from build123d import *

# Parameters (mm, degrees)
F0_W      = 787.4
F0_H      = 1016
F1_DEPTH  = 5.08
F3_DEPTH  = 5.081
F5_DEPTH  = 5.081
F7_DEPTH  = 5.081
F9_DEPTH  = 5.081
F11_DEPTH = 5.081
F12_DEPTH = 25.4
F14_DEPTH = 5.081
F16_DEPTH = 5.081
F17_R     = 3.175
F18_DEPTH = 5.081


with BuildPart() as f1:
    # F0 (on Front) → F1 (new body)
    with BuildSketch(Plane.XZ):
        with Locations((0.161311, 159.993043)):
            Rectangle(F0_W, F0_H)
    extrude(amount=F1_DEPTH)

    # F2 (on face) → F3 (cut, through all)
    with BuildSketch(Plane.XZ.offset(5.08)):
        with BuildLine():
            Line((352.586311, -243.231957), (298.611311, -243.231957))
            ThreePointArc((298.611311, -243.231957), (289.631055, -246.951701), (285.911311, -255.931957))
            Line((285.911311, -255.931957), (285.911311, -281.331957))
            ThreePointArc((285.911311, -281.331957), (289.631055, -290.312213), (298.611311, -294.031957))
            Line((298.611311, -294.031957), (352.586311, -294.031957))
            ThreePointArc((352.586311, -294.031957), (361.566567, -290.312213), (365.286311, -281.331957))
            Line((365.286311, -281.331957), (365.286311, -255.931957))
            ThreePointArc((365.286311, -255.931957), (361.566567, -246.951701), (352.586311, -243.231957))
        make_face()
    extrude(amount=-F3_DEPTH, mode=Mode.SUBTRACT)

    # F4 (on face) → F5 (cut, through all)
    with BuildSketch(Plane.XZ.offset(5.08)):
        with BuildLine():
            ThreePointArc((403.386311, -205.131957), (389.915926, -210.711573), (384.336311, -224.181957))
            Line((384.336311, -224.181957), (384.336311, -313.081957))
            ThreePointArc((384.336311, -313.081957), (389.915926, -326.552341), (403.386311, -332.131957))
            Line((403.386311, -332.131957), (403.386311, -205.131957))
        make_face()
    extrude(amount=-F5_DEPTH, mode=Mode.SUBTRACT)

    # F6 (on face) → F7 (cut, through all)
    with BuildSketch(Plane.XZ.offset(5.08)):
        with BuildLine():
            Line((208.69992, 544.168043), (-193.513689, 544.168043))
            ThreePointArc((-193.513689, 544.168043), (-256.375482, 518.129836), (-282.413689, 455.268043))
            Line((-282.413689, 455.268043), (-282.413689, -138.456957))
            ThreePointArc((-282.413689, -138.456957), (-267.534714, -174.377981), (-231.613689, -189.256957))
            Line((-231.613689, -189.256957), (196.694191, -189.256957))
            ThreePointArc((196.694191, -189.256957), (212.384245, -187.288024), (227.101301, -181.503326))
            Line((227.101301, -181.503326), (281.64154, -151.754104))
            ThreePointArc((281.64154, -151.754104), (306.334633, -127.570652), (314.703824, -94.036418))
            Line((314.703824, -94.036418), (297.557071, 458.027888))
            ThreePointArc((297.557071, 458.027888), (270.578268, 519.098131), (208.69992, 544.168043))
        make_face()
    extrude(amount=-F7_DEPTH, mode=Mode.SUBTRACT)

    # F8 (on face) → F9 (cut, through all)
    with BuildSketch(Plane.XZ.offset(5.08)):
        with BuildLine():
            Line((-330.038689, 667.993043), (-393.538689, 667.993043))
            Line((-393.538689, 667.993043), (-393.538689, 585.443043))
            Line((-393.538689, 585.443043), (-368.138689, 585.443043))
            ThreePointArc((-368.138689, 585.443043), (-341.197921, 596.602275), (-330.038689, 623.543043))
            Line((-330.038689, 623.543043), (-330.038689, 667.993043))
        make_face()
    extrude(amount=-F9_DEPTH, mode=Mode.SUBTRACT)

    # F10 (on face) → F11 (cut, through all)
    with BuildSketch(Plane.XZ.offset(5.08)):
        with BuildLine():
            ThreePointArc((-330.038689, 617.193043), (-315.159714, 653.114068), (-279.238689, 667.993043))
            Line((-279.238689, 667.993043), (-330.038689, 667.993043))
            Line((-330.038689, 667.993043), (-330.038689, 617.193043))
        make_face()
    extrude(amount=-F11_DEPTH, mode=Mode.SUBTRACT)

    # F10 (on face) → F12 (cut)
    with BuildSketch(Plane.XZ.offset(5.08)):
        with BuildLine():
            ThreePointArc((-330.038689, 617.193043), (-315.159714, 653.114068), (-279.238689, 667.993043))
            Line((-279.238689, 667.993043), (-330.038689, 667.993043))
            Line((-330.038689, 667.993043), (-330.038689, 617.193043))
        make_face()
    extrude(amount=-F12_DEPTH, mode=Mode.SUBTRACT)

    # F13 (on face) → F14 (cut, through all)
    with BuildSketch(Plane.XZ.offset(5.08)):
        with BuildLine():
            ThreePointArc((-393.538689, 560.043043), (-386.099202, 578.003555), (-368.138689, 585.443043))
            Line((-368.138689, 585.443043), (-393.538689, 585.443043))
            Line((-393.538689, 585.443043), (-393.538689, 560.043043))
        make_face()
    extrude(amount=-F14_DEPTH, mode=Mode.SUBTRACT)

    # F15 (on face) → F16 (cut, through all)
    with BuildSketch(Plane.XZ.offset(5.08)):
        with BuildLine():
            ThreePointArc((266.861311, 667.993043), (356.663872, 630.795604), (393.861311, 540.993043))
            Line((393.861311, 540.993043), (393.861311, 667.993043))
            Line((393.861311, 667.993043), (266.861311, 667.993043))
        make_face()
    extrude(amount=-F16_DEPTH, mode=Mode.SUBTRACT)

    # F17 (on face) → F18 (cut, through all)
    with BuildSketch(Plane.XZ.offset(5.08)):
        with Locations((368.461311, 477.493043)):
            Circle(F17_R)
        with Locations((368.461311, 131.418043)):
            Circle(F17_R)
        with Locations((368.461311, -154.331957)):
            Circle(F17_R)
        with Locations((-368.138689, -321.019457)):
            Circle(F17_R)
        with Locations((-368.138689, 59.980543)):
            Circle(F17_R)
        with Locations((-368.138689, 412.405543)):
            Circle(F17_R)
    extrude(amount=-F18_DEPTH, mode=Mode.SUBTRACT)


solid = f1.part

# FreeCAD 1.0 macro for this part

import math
import FreeCAD as App
import Part
import Sketcher
from FreeCAD import Vector
Q = App.Units.Quantity


def add_polygon(sketch, points):
    """Adds a closed chain of lines whose ends are joined by coincident constraints."""
    first, n = sketch.GeometryCount, len(points)
    for a, b in zip(points, points[1:] + points[:1]):
        sketch.addGeometry(Part.LineSegment(App.Vector(*a, 0), App.Vector(*b, 0)), False)
    for i in range(n):
        sketch.addConstraint(Sketcher.Constraint("Coincident", first + i, 2, first + (i + 1) % n, 1))

doc = App.newDocument("Part")
body = doc.addObject("PartDesign::Body", "Body")

# Sketch on XZ plane
sketch1 = doc.addObject("Sketcher::SketchObject", "Sketch")
body.addObject(sketch1)
sketch1.AttachmentSupport = (doc.XZ_Plane, [""])
sketch1.MapMode = "FlatFace"
add_polygon(sketch1, [(-393.538689, 667.993043), (-393.538689, -348.006957), (393.861311, -348.006957), (393.861311, 667.993043)])  # lines 0-3
sketch1.addConstraint([
    Sketcher.Constraint("Vertical", 0),
    Sketcher.Constraint("Horizontal", 1),
    Sketcher.Constraint("Vertical", 2),
    Sketcher.Constraint("Horizontal", 3),
    Sketcher.Constraint("DistanceX", 1, 1, 1, 2, Q("31 in")),
    Sketcher.Constraint("DistanceY", 0, 2, 0, 1, Q("40 in")),
    Sketcher.Constraint("DistanceX", 0, 2, -1, 1, 393.538689),
    Sketcher.Constraint("DistanceY", 0, 2, -1, 1, 348.006957),
])
pad1 = doc.addObject("PartDesign::Pad", "Pad")
body.addObject(pad1)
pad1.Profile = sketch1
pad1.Length = Q("0.2 in")

# Sketch on XZ plane
sketch2 = doc.addObject("Sketcher::SketchObject", "Sketch001")
body.addObject(sketch2)
sketch2.AttachmentSupport = (doc.XZ_Plane, [""])
sketch2.MapMode = "FlatFace"
sketch2.AttachmentOffset = App.Placement(Vector(0, 0, 0.2 * 25.4), App.Rotation())
sketch2.addGeometry([
    Part.LineSegment(Vector(352.586311, -243.231957, 0), Vector(298.611311, -243.231957, 0)),  # 0
    Part.ArcOfCircle(Part.Circle(Vector(298.611311, -255.931957, 0), Vector(0, 0, 1), 12.7), math.radians(90.000002), math.radians(179.999998)),  # 1
    Part.LineSegment(Vector(285.911311, -255.931957, 0), Vector(285.911311, -281.331957, 0)),  # 2
    Part.ArcOfCircle(Part.Circle(Vector(298.611311, -281.331957, 0), Vector(0, 0, 1), 12.7), math.radians(-179.999998), math.radians(-90.000002)),  # 3
    Part.LineSegment(Vector(298.611311, -294.031957, 0), Vector(352.586311, -294.031957, 0)),  # 4
    Part.ArcOfCircle(Part.Circle(Vector(352.586311, -281.331957, 0), Vector(0, 0, 1), 12.7), math.radians(-89.999998), math.radians(-0.000002)),  # 5
    Part.LineSegment(Vector(365.286311, -281.331957, 0), Vector(365.286311, -255.931957, 0)),  # 6
    Part.ArcOfCircle(Part.Circle(Vector(352.586311, -255.931957, 0), Vector(0, 0, 1), 12.7), math.radians(0.000002), math.radians(89.999998)),  # 7
], False)
sketch2.addConstraint([
    Sketcher.Constraint("Tangent", 0, 2, 1, 1),
    Sketcher.Constraint("Tangent", 1, 2, 2, 1),
    Sketcher.Constraint("Tangent", 2, 2, 3, 1),
    Sketcher.Constraint("Tangent", 3, 2, 4, 1),
    Sketcher.Constraint("Tangent", 4, 2, 5, 1),
    Sketcher.Constraint("Tangent", 5, 2, 6, 1),
    Sketcher.Constraint("Tangent", 6, 2, 7, 1),
    Sketcher.Constraint("Tangent", 7, 2, 0, 1),
    Sketcher.Constraint("Horizontal", 0),
    Sketcher.Constraint("Vertical", 2),
    Sketcher.Constraint("Horizontal", 4),
    Sketcher.Constraint("Vertical", 6),
    Sketcher.Constraint("Equal", 1, 3),
    Sketcher.Constraint("Equal", 3, 5),
    Sketcher.Constraint("Equal", 5, 7),
    Sketcher.Constraint("Radius", 1, Q("0.5 in")),
    Sketcher.Constraint("DistanceY", 2, 2, 2, 1, Q("1 in")),
    Sketcher.Constraint("DistanceX", 0, 2, 0, 1, Q("2.125 in")),
    Sketcher.Constraint("DistanceX", -1, 1, 1, 3, 298.611311),
    Sketcher.Constraint("DistanceY", 1, 3, -1, 1, 255.931957),
])
pocket1 = doc.addObject("PartDesign::Pocket", "Pocket")
body.addObject(pocket1)
pocket1.Profile = sketch2
pocket1.Type = "ThroughAll"

# Sketch on XZ plane
sketch3 = doc.addObject("Sketcher::SketchObject", "Sketch002")
body.addObject(sketch3)
sketch3.AttachmentSupport = (doc.XZ_Plane, [""])
sketch3.MapMode = "FlatFace"
sketch3.AttachmentOffset = App.Placement(Vector(0, 0, 0.2 * 25.4), App.Rotation())
sketch3.addGeometry([
    Part.ArcOfCircle(Part.Circle(Vector(403.38631, -224.181956, 0), Vector(0, 0, 1), 19.049999), math.radians(89.999997), math.radians(180.000003)),
    Part.LineSegment(Vector(384.336311, -224.181957, 0), Vector(384.336311, -313.081957, 0)),
    Part.ArcOfCircle(Part.Circle(Vector(403.38631, -313.081958, 0), Vector(0, 0, 1), 19.049999), math.radians(179.999997), math.radians(270.000003)),
    Part.LineSegment(Vector(403.386311, -332.131957, 0), Vector(403.386311, -205.131957, 0)),
], False)
sketch3.addConstraint([
    Sketcher.Constraint("Tangent", 0, 2, 1, 1),
    Sketcher.Constraint("Tangent", 1, 2, 2, 1),
    Sketcher.Constraint("Coincident", 2, 2, 3, 1),
    Sketcher.Constraint("Coincident", 3, 2, 0, 1),
    Sketcher.Constraint("Vertical", 1),
    Sketcher.Constraint("Vertical", 3),
    Sketcher.Constraint("Equal", 0, 2),
    Sketcher.Constraint("Vertical", 0, 3, 2, 2),
    Sketcher.Constraint("DistanceY", 3, 1, 3, 2, Q("5 in")),
    Sketcher.Constraint("Radius", 0, Q("0.75 in")),
    Sketcher.Constraint("DistanceX", -1, 1, 0, 3, 403.38631),
    Sketcher.Constraint("DistanceY", 2, 3, -1, 1, 313.081958),
])
pocket2 = doc.addObject("PartDesign::Pocket", "Pocket001")
body.addObject(pocket2)
pocket2.Profile = sketch3
pocket2.Type = "ThroughAll"

# Sketch on XZ plane
sketch4 = doc.addObject("Sketcher::SketchObject", "Sketch003")
body.addObject(sketch4)
sketch4.AttachmentSupport = (doc.XZ_Plane, [""])
sketch4.MapMode = "FlatFace"
sketch4.AttachmentOffset = App.Placement(Vector(0, 0, 0.2 * 25.4), App.Rotation())
sketch4.addGeometry([
    Part.LineSegment(Vector(208.69992, 544.168043, 0), Vector(-193.513689, 544.168043, 0)),  # 0
    Part.ArcOfCircle(Part.Circle(Vector(-193.51369, 455.268044, 0), Vector(0, 0, 1), 88.899999), math.radians(90), math.radians(180)),  # 1
    Part.LineSegment(Vector(-282.413689, 455.268043, 0), Vector(-282.413689, -138.456957, 0)),  # 2
    Part.ArcOfCircle(Part.Circle(Vector(-231.613689, -138.456957, 0), Vector(0, 0, 1), 50.8), math.radians(180), math.radians(270)),  # 3
    Part.LineSegment(Vector(-231.613689, -189.256957, 0), Vector(196.694191, -189.256957, 0)),  # 4
    Part.ArcOfCircle(Part.Circle(Vector(196.694191, -125.756958, 0), Vector(0, 0, 1), 63.499999), math.radians(-90), math.radians(-61.38954)),  # 5
    Part.LineSegment(Vector(227.101301, -181.503326, 0), Vector(281.64154, -151.754104, 0)),  # 6
    Part.ArcOfCircle(Part.Circle(Vector(251.234433, -96.007736, 0), Vector(0, 0, 1), 63.499997), math.radians(-61.389543), math.radians(1.778998)),  # 7
    Part.LineSegment(Vector(314.703824, -94.036418, 0), Vector(297.557071, 458.027888, 0)),  # 8
    Part.ArcOfCircle(Part.Circle(Vector(208.699921, 455.268044, 0), Vector(0, 0, 1), 88.899999), math.radians(1.778997), math.radians(90.000001)),  # 9
], False)
sketch4.addConstraint([
    Sketcher.Constraint("Tangent", 0, 2, 1, 1),
    Sketcher.Constraint("Tangent", 1, 2, 2, 1),
    Sketcher.Constraint("Tangent", 2, 2, 3, 1),
    Sketcher.Constraint("Tangent", 3, 2, 4, 1),
    Sketcher.Constraint("Tangent", 4, 2, 5, 1),
    Sketcher.Constraint("Tangent", 5, 2, 6, 1),
    Sketcher.Constraint("Tangent", 6, 2, 7, 1),
    Sketcher.Constraint("Tangent", 7, 2, 8, 1),
    Sketcher.Constraint("Tangent", 8, 2, 9, 1),
    Sketcher.Constraint("Tangent", 9, 2, 0, 1),
    Sketcher.Constraint("Horizontal", 0),
    Sketcher.Constraint("Vertical", 2),
    Sketcher.Constraint("Horizontal", 4),
    Sketcher.Constraint("Equal", 1, 9),
    Sketcher.Constraint("Radius", 3, Q("2 in")),
    Sketcher.Constraint("Radius", 1, Q("3.5 in")),
    Sketcher.Constraint("Radius", 5, Q("2.5 in")),
    Sketcher.Constraint("Radius", 7, Q("2.4999999 in")),
    Sketcher.Constraint("DistanceY", 2, 2, 2, 1, Q("23.375 in")),
    Sketcher.Constraint("DistanceX", 0, 2, 0, 1, 402.213609),
    Sketcher.Constraint("DistanceX", 4, 1, 4, 2, 428.30788),
    Sketcher.Constraint("DistanceX", -1, 1, 5, 2, 227.101301),
    Sketcher.Constraint("DistanceX", 1, 3, -1, 1, 193.51369),
    Sketcher.Constraint("DistanceX", -1, 1, 6, 2, 281.64154),
    Sketcher.Constraint("DistanceY", 7, 2, -1, 1, 94.036418),
])
pocket3 = doc.addObject("PartDesign::Pocket", "Pocket002")
body.addObject(pocket3)
pocket3.Profile = sketch4
pocket3.Type = "ThroughAll"

# Sketch on XZ plane
sketch5 = doc.addObject("Sketcher::SketchObject", "Sketch004")
body.addObject(sketch5)
sketch5.AttachmentSupport = (doc.XZ_Plane, [""])
sketch5.MapMode = "FlatFace"
sketch5.AttachmentOffset = App.Placement(Vector(0, 0, 0.2 * 25.4), App.Rotation())
sketch5.addGeometry([
    Part.LineSegment(Vector(-330.038689, 667.993043, 0), Vector(-393.538689, 667.993043, 0)),  # 0
    Part.LineSegment(Vector(-393.538689, 667.993043, 0), Vector(-393.538689, 585.443043, 0)),  # 1
    Part.LineSegment(Vector(-393.538689, 585.443043, 0), Vector(-368.138689, 585.443043, 0)),  # 2
    Part.ArcOfCircle(Part.Circle(Vector(-368.13869, 623.543044, 0), Vector(0, 0, 1), 38.100001), math.radians(-89.999998), math.radians(-0.000002)),  # 3
    Part.LineSegment(Vector(-330.038689, 623.543043, 0), Vector(-330.038689, 667.993043, 0)),  # 4
], False)
sketch5.addConstraint([
    Sketcher.Constraint("Coincident", 0, 2, 1, 1),
    Sketcher.Constraint("Coincident", 1, 2, 2, 1),
    Sketcher.Constraint("Tangent", 2, 2, 3, 1),
    Sketcher.Constraint("Tangent", 3, 2, 4, 1),
    Sketcher.Constraint("Coincident", 4, 2, 0, 1),
    Sketcher.Constraint("Horizontal", 0),
    Sketcher.Constraint("Vertical", 1),
    Sketcher.Constraint("Horizontal", 2),
    Sketcher.Constraint("Vertical", 4),
    Sketcher.Constraint("Radius", 3, Q("1.5 in")),
    Sketcher.Constraint("DistanceX", 2, 1, 2, 2, Q("1 in")),
    Sketcher.Constraint("DistanceY", 1, 2, 1, 1, Q("3.25 in")),
    Sketcher.Constraint("DistanceX", 3, 3, -1, 1, 368.13869),
    Sketcher.Constraint("DistanceY", -1, 1, 3, 3, 623.543044),
])
pocket4 = doc.addObject("PartDesign::Pocket", "Pocket003")
body.addObject(pocket4)
pocket4.Profile = sketch5
pocket4.Type = "ThroughAll"

# Sketch on XZ plane
sketch6 = doc.addObject("Sketcher::SketchObject", "Sketch005")
body.addObject(sketch6)
sketch6.AttachmentSupport = (doc.XZ_Plane, [""])
sketch6.MapMode = "FlatFace"
sketch6.AttachmentOffset = App.Placement(Vector(0, 0, 0.2 * 25.4), App.Rotation())
sketch6.addGeometry([
    Part.ArcOfCircle(Part.Circle(Vector(-279.238691, 617.193045, 0), Vector(0, 0, 1), 50.799998), math.radians(89.999998), math.radians(180.000002)),
    Part.LineSegment(Vector(-279.238689, 667.993043, 0), Vector(-330.038689, 667.993043, 0)),
    Part.LineSegment(Vector(-330.038689, 667.993043, 0), Vector(-330.038689, 617.193043, 0)),
], False)
sketch6.addConstraint([
    Sketcher.Constraint("Tangent", 0, 1, 1, 1),
    Sketcher.Constraint("Coincident", 1, 2, 2, 1),
    Sketcher.Constraint("Tangent", 2, 2, 0, 2),
    Sketcher.Constraint("Horizontal", 1),
    Sketcher.Constraint("Vertical", 2),
    Sketcher.Constraint("Radius", 0, Q("1.9999999 in")),
    Sketcher.Constraint("DistanceX", 0, 3, -1, 1, 279.238691),
    Sketcher.Constraint("DistanceY", -1, 1, 0, 3, 617.193045),
])
pocket5 = doc.addObject("PartDesign::Pocket", "Pocket004")
body.addObject(pocket5)
pocket5.Profile = sketch6
pocket5.Type = "ThroughAll"

# Sketch on XZ plane
sketch7 = doc.addObject("Sketcher::SketchObject", "Sketch006")
body.addObject(sketch7)
sketch7.AttachmentSupport = (doc.XZ_Plane, [""])
sketch7.MapMode = "FlatFace"
sketch7.AttachmentOffset = App.Placement(Vector(0, 0, 0.2 * 25.4), App.Rotation())
sketch7.addGeometry([
    Part.ArcOfCircle(Part.Circle(Vector(-279.238691, 617.193045, 0), Vector(0, 0, 1), 50.799998), math.radians(89.999998), math.radians(180.000002)),
    Part.LineSegment(Vector(-279.238689, 667.993043, 0), Vector(-330.038689, 667.993043, 0)),
    Part.LineSegment(Vector(-330.038689, 667.993043, 0), Vector(-330.038689, 617.193043, 0)),
], False)
sketch7.addConstraint([
    Sketcher.Constraint("Tangent", 0, 1, 1, 1),
    Sketcher.Constraint("Coincident", 1, 2, 2, 1),
    Sketcher.Constraint("Tangent", 2, 2, 0, 2),
    Sketcher.Constraint("Horizontal", 1),
    Sketcher.Constraint("Vertical", 2),
    Sketcher.Constraint("Radius", 0, Q("1.9999999 in")),
    Sketcher.Constraint("DistanceX", 0, 3, -1, 1, 279.238691),
    Sketcher.Constraint("DistanceY", -1, 1, 0, 3, 617.193045),
])
pocket6 = doc.addObject("PartDesign::Pocket", "Pocket005")
body.addObject(pocket6)
pocket6.Profile = sketch7
pocket6.Length = Q("1 in")

# Sketch on XZ plane
sketch8 = doc.addObject("Sketcher::SketchObject", "Sketch007")
body.addObject(sketch8)
sketch8.AttachmentSupport = (doc.XZ_Plane, [""])
sketch8.MapMode = "FlatFace"
sketch8.AttachmentOffset = App.Placement(Vector(0, 0, 0.2 * 25.4), App.Rotation())
sketch8.addGeometry([
    Part.ArcOfCircle(Part.Circle(Vector(-368.13869, 560.043044, 0), Vector(0, 0, 1), 25.399999), math.radians(89.999998), math.radians(180.000002)),
    Part.LineSegment(Vector(-368.138689, 585.443043, 0), Vector(-393.538689, 585.443043, 0)),
    Part.LineSegment(Vector(-393.538689, 585.443043, 0), Vector(-393.538689, 560.043043, 0)),
], False)
sketch8.addConstraint([
    Sketcher.Constraint("Tangent", 0, 1, 1, 1),
    Sketcher.Constraint("Coincident", 1, 2, 2, 1),
    Sketcher.Constraint("Tangent", 2, 2, 0, 2),
    Sketcher.Constraint("Horizontal", 1),
    Sketcher.Constraint("Vertical", 2),
    Sketcher.Constraint("Radius", 0, Q("1 in")),
    Sketcher.Constraint("DistanceX", 0, 3, -1, 1, 368.13869),
    Sketcher.Constraint("DistanceY", -1, 1, 0, 3, 560.043044),
])
pocket7 = doc.addObject("PartDesign::Pocket", "Pocket006")
body.addObject(pocket7)
pocket7.Profile = sketch8
pocket7.Type = "ThroughAll"

# Sketch on XZ plane
sketch9 = doc.addObject("Sketcher::SketchObject", "Sketch008")
body.addObject(sketch9)
sketch9.AttachmentSupport = (doc.XZ_Plane, [""])
sketch9.MapMode = "FlatFace"
sketch9.AttachmentOffset = App.Placement(Vector(0, 0, 0.2 * 25.4), App.Rotation())
sketch9.addGeometry([
    Part.ArcOfCircle(Part.Circle(Vector(266.86131, 540.993042, 0), Vector(0, 0, 1), 127.000001), math.radians(0), math.radians(90)),
    Part.LineSegment(Vector(393.861311, 540.993043, 0), Vector(393.861311, 667.993043, 0)),
    Part.LineSegment(Vector(393.861311, 667.993043, 0), Vector(266.861311, 667.993043, 0)),
], False)
sketch9.addConstraint([
    Sketcher.Constraint("Tangent", 0, 1, 1, 1),
    Sketcher.Constraint("Coincident", 1, 2, 2, 1),
    Sketcher.Constraint("Tangent", 2, 2, 0, 2),
    Sketcher.Constraint("Vertical", 1),
    Sketcher.Constraint("Horizontal", 2),
    Sketcher.Constraint("Radius", 0, Q("5 in")),
    Sketcher.Constraint("DistanceX", -1, 1, 0, 3, 266.86131),
    Sketcher.Constraint("DistanceY", -1, 1, 0, 3, 540.993042),
])
pocket8 = doc.addObject("PartDesign::Pocket", "Pocket007")
body.addObject(pocket8)
pocket8.Profile = sketch9
pocket8.Type = "ThroughAll"

# Sketch on XZ plane
sketch10 = doc.addObject("Sketcher::SketchObject", "Sketch009")
body.addObject(sketch10)
sketch10.AttachmentSupport = (doc.XZ_Plane, [""])
sketch10.MapMode = "FlatFace"
sketch10.AttachmentOffset = App.Placement(Vector(0, 0, 0.2 * 25.4), App.Rotation())
sketch10.addGeometry([
    Part.Circle(Vector(368.461311, 477.493043, 0), Vector(0, 0, 1), 3.175),  # 0
    Part.Circle(Vector(368.461311, 131.418043, 0), Vector(0, 0, 1), 3.175),  # 1
    Part.Circle(Vector(368.461311, -154.331957, 0), Vector(0, 0, 1), 3.175),  # 2
    Part.Circle(Vector(-368.138689, -321.019457, 0), Vector(0, 0, 1), 3.175),  # 3
    Part.Circle(Vector(-368.138689, 59.980543, 0), Vector(0, 0, 1), 3.175),  # 4
    Part.Circle(Vector(-368.138689, 412.405543, 0), Vector(0, 0, 1), 3.175),  # 5
], False)
sketch10.addConstraint([
    Sketcher.Constraint("Equal", 0, 1),
    Sketcher.Constraint("Equal", 1, 2),
    Sketcher.Constraint("Equal", 2, 3),
    Sketcher.Constraint("Equal", 3, 4),
    Sketcher.Constraint("Equal", 4, 5),
    Sketcher.Constraint("Vertical", 0, 3, 1, 3),
    Sketcher.Constraint("Vertical", 1, 3, 2, 3),
    Sketcher.Constraint("Vertical", 3, 3, 4, 3),
    Sketcher.Constraint("Vertical", 4, 3, 5, 3),
    Sketcher.Constraint("Diameter", 0, Q("0.25 in")),
    Sketcher.Constraint("DistanceX", 3, 3, 2, 3, Q("29 in")),
    Sketcher.Constraint("DistanceY", 3, 3, 4, 3, Q("15 in")),
    Sketcher.Constraint("DistanceY", 2, 3, 1, 3, Q("11.25 in")),
    Sketcher.Constraint("DistanceY", 1, 3, 0, 3, Q("13.625 in")),
    Sketcher.Constraint("DistanceY", 3, 3, 2, 3, Q("6.5625 in")),
    Sketcher.Constraint("DistanceY", 4, 3, 5, 3, Q("13.875 in")),
    Sketcher.Constraint("DistanceX", -1, 1, 0, 3, 368.461311),
    Sketcher.Constraint("DistanceY", -1, 1, 0, 3, 477.493043),
])
pocket9 = doc.addObject("PartDesign::Pocket", "Pocket008")
body.addObject(pocket9)
pocket9.Profile = sketch10
pocket9.Type = "ThroughAll"

doc.recompute()
